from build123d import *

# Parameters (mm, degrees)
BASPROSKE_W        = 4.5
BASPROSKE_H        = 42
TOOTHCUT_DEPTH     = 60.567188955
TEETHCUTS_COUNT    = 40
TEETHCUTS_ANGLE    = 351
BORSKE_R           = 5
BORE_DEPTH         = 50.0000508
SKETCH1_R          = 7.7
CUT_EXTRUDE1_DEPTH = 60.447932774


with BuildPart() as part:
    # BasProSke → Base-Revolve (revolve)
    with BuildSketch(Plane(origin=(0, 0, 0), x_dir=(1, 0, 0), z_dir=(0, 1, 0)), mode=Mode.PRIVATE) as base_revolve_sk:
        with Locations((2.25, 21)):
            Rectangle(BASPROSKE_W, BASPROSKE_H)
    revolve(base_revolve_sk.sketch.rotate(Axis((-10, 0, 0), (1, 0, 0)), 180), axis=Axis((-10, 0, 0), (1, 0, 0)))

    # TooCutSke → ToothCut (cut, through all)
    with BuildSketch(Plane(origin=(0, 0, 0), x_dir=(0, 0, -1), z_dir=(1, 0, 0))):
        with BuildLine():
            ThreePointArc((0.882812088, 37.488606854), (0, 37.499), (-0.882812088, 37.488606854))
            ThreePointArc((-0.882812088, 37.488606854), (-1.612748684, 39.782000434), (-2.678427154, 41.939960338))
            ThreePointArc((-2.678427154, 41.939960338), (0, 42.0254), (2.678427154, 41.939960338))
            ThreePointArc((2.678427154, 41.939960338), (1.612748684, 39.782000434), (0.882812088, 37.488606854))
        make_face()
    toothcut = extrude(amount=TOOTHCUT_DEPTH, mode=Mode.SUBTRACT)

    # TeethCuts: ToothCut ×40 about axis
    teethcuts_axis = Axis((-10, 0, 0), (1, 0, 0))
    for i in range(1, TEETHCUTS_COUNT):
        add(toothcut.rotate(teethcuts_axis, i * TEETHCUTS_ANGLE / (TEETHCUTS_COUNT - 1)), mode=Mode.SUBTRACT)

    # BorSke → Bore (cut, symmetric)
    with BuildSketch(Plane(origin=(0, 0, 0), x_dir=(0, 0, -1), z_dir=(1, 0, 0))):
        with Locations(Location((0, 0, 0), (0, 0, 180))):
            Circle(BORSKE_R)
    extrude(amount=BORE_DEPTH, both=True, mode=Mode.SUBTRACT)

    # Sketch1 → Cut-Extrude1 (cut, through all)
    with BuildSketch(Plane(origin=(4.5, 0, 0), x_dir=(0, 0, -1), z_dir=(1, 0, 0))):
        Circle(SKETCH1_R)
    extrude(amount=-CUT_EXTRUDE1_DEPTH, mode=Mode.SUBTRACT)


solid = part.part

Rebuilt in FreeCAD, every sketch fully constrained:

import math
import FreeCAD as App
import Part
import Sketcher
from FreeCAD import Vector

doc = App.newDocument("Part")
body = doc.addObject("PartDesign::Body", "Body")

# Sketch on XZ plane
sketch1 = body.newObject("Sketcher::SketchObject", "Sketch")
sketch1.AttachmentSupport = (doc.getObject("XZ_Plane"), [""])
sketch1.MapMode = "FlatFace"
sketch1.addGeometry([
    Part.LineSegment(Vector(0, -42, 0), Vector(0, 0, 0)),
    Part.LineSegment(Vector(0, 0, 0), Vector(4.5, 0, 0)),
    Part.LineSegment(Vector(4.5, 0, 0), Vector(4.5, -42, 0)),
    Part.LineSegment(Vector(4.5, -42, 0), Vector(0, -42, 0)),
], False)
sketch1.addConstraint([
    Sketcher.Constraint("Coincident", 0, 2, 1, 1),
    Sketcher.Constraint("Coincident", 1, 2, 2, 1),
    Sketcher.Constraint("Coincident", 2, 2, 3, 1),
    Sketcher.Constraint("Coincident", 3, 2, 0, 1),
    Sketcher.Constraint("Vertical", 0),
    Sketcher.Constraint("Horizontal", 1),
    Sketcher.Constraint("Vertical", 2),
    Sketcher.Constraint("Horizontal", 3),
    Sketcher.Constraint("Coincident", 0, 2, -1, 1),
    Sketcher.Constraint("DistanceY", 0, 1, 0, 2, 42.0),
    Sketcher.Constraint("DistanceX", 1, 1, 1, 2, 4.5),
])
revolution = body.newObject("PartDesign::Revolution", "Revolution")
revolution.Profile = sketch1
revolution.ReferenceAxis = (sketch1, ["H_Axis"])
revolution.Angle = 360

# Sketch on YZ plane
sketch2 = body.newObject("Sketcher::SketchObject", "Sketch001")
sketch2.AttachmentSupport = (doc.getObject("YZ_Plane"), [""])
sketch2.MapMode = "FlatFace"
sketch2.addGeometry([
    Part.ArcOfCircle(Part.Circle(Vector(0, 0, 0), Vector(0, 0, 1), 37.5), math.radians(-1.35), math.radians(1.35)),
    Part.ArcOfCircle(Part.Circle(Vector(33.8, -16.5, 0), Vector(0, 0, 1), 16), math.radians(59.4), math.radians(76.66)),
    Part.ArcOfCircle(Part.Circle(Vector(0, 0, 0), Vector(0, 0, 1), 42), math.radians(-3.65), math.radians(3.65)),
    Part.ArcOfCircle(Part.Circle(Vector(33.8, 16.5, 0), Vector(0, 0, 1), 16), math.radians(-76.66), math.radians(-59.4)),
], False)
sketch2.addConstraint([
    Sketcher.Constraint("Coincident", 0, 1, 1, 2),
    Sketcher.Constraint("Coincident", 1, 1, 2, 1),
    Sketcher.Constraint("Coincident", 2, 2, 3, 2),
    Sketcher.Constraint("Coincident", 3, 1, 0, 2),
    Sketcher.Constraint("Coincident", 0, 3, -1, 1),
    Sketcher.Constraint("Coincident", 2, 3, -1, 1),
    Sketcher.Constraint("Equal", 1, 3),
    Sketcher.Constraint("Symmetric", 1, 3, 3, 3, -1),
    Sketcher.Constraint("Radius", 1, 16.0),
    Sketcher.Constraint("Radius", 0, 37.499002),
    Sketcher.Constraint("Radius", 2, 42.0254),
    Sketcher.Constraint("DistanceY", 0, 1, 3, 3, 17.333798),
    Sketcher.Constraint("DistanceX", 1, 3, 1, 1, 8.143502),
])
pocket1 = body.newObject("PartDesign::Pocket", "Pocket")
pocket1.Profile = sketch2
pocket1.Type = "ThroughAll"
pocket1.Reversed = True
doc.recompute()

polarpattern = body.newObject("PartDesign::PolarPattern", "PolarPattern")
polarpattern.Originals = [pocket1]
polarpattern.Axis = (doc.getObject("X_Axis"), [""])
polarpattern.Angle = 360
polarpattern.Occurrences = 40
body.Tip = polarpattern

# Sketch on YZ plane
sketch3 = body.newObject("Sketcher::SketchObject", "Sketch002")
sketch3.AttachmentSupport = (doc.getObject("YZ_Plane"), [""])
sketch3.MapMode = "FlatFace"
sketch3.addGeometry(Part.Circle(Vector(0, 0, 0), Vector(0, 0, 1), 5), False)
sketch3.addConstraint([
    Sketcher.Constraint("Coincident", 0, 3, -1, 1),
    Sketcher.Constraint("Diameter", 0, 10.0),
])
pocket2 = body.newObject("PartDesign::Pocket", "Pocket001")
pocket2.Profile = sketch3
pocket2.Length = 100.000102
pocket2.Midplane = True

# Sketch on YZ plane
sketch4 = body.newObject("Sketcher::SketchObject", "Sketch003")
sketch4.AttachmentSupport = (doc.getObject("YZ_Plane"), [""])
sketch4.MapMode = "FlatFace"
sketch4.AttachmentOffset = App.Placement(Vector(0, 0, 4.5), App.Rotation())
sketch4.addGeometry(Part.Circle(Vector(0, 0, 0), Vector(0, 0, 1), 8), False)
sketch4.addConstraint([
    Sketcher.Constraint("Coincident", 0, 3, -1, 1),
    Sketcher.Constraint("Diameter", 0, 15.4),
])
pocket3 = body.newObject("PartDesign::Pocket", "Pocket002")
pocket3.Profile = sketch4
pocket3.Type = "ThroughAll"

doc.recompute()
